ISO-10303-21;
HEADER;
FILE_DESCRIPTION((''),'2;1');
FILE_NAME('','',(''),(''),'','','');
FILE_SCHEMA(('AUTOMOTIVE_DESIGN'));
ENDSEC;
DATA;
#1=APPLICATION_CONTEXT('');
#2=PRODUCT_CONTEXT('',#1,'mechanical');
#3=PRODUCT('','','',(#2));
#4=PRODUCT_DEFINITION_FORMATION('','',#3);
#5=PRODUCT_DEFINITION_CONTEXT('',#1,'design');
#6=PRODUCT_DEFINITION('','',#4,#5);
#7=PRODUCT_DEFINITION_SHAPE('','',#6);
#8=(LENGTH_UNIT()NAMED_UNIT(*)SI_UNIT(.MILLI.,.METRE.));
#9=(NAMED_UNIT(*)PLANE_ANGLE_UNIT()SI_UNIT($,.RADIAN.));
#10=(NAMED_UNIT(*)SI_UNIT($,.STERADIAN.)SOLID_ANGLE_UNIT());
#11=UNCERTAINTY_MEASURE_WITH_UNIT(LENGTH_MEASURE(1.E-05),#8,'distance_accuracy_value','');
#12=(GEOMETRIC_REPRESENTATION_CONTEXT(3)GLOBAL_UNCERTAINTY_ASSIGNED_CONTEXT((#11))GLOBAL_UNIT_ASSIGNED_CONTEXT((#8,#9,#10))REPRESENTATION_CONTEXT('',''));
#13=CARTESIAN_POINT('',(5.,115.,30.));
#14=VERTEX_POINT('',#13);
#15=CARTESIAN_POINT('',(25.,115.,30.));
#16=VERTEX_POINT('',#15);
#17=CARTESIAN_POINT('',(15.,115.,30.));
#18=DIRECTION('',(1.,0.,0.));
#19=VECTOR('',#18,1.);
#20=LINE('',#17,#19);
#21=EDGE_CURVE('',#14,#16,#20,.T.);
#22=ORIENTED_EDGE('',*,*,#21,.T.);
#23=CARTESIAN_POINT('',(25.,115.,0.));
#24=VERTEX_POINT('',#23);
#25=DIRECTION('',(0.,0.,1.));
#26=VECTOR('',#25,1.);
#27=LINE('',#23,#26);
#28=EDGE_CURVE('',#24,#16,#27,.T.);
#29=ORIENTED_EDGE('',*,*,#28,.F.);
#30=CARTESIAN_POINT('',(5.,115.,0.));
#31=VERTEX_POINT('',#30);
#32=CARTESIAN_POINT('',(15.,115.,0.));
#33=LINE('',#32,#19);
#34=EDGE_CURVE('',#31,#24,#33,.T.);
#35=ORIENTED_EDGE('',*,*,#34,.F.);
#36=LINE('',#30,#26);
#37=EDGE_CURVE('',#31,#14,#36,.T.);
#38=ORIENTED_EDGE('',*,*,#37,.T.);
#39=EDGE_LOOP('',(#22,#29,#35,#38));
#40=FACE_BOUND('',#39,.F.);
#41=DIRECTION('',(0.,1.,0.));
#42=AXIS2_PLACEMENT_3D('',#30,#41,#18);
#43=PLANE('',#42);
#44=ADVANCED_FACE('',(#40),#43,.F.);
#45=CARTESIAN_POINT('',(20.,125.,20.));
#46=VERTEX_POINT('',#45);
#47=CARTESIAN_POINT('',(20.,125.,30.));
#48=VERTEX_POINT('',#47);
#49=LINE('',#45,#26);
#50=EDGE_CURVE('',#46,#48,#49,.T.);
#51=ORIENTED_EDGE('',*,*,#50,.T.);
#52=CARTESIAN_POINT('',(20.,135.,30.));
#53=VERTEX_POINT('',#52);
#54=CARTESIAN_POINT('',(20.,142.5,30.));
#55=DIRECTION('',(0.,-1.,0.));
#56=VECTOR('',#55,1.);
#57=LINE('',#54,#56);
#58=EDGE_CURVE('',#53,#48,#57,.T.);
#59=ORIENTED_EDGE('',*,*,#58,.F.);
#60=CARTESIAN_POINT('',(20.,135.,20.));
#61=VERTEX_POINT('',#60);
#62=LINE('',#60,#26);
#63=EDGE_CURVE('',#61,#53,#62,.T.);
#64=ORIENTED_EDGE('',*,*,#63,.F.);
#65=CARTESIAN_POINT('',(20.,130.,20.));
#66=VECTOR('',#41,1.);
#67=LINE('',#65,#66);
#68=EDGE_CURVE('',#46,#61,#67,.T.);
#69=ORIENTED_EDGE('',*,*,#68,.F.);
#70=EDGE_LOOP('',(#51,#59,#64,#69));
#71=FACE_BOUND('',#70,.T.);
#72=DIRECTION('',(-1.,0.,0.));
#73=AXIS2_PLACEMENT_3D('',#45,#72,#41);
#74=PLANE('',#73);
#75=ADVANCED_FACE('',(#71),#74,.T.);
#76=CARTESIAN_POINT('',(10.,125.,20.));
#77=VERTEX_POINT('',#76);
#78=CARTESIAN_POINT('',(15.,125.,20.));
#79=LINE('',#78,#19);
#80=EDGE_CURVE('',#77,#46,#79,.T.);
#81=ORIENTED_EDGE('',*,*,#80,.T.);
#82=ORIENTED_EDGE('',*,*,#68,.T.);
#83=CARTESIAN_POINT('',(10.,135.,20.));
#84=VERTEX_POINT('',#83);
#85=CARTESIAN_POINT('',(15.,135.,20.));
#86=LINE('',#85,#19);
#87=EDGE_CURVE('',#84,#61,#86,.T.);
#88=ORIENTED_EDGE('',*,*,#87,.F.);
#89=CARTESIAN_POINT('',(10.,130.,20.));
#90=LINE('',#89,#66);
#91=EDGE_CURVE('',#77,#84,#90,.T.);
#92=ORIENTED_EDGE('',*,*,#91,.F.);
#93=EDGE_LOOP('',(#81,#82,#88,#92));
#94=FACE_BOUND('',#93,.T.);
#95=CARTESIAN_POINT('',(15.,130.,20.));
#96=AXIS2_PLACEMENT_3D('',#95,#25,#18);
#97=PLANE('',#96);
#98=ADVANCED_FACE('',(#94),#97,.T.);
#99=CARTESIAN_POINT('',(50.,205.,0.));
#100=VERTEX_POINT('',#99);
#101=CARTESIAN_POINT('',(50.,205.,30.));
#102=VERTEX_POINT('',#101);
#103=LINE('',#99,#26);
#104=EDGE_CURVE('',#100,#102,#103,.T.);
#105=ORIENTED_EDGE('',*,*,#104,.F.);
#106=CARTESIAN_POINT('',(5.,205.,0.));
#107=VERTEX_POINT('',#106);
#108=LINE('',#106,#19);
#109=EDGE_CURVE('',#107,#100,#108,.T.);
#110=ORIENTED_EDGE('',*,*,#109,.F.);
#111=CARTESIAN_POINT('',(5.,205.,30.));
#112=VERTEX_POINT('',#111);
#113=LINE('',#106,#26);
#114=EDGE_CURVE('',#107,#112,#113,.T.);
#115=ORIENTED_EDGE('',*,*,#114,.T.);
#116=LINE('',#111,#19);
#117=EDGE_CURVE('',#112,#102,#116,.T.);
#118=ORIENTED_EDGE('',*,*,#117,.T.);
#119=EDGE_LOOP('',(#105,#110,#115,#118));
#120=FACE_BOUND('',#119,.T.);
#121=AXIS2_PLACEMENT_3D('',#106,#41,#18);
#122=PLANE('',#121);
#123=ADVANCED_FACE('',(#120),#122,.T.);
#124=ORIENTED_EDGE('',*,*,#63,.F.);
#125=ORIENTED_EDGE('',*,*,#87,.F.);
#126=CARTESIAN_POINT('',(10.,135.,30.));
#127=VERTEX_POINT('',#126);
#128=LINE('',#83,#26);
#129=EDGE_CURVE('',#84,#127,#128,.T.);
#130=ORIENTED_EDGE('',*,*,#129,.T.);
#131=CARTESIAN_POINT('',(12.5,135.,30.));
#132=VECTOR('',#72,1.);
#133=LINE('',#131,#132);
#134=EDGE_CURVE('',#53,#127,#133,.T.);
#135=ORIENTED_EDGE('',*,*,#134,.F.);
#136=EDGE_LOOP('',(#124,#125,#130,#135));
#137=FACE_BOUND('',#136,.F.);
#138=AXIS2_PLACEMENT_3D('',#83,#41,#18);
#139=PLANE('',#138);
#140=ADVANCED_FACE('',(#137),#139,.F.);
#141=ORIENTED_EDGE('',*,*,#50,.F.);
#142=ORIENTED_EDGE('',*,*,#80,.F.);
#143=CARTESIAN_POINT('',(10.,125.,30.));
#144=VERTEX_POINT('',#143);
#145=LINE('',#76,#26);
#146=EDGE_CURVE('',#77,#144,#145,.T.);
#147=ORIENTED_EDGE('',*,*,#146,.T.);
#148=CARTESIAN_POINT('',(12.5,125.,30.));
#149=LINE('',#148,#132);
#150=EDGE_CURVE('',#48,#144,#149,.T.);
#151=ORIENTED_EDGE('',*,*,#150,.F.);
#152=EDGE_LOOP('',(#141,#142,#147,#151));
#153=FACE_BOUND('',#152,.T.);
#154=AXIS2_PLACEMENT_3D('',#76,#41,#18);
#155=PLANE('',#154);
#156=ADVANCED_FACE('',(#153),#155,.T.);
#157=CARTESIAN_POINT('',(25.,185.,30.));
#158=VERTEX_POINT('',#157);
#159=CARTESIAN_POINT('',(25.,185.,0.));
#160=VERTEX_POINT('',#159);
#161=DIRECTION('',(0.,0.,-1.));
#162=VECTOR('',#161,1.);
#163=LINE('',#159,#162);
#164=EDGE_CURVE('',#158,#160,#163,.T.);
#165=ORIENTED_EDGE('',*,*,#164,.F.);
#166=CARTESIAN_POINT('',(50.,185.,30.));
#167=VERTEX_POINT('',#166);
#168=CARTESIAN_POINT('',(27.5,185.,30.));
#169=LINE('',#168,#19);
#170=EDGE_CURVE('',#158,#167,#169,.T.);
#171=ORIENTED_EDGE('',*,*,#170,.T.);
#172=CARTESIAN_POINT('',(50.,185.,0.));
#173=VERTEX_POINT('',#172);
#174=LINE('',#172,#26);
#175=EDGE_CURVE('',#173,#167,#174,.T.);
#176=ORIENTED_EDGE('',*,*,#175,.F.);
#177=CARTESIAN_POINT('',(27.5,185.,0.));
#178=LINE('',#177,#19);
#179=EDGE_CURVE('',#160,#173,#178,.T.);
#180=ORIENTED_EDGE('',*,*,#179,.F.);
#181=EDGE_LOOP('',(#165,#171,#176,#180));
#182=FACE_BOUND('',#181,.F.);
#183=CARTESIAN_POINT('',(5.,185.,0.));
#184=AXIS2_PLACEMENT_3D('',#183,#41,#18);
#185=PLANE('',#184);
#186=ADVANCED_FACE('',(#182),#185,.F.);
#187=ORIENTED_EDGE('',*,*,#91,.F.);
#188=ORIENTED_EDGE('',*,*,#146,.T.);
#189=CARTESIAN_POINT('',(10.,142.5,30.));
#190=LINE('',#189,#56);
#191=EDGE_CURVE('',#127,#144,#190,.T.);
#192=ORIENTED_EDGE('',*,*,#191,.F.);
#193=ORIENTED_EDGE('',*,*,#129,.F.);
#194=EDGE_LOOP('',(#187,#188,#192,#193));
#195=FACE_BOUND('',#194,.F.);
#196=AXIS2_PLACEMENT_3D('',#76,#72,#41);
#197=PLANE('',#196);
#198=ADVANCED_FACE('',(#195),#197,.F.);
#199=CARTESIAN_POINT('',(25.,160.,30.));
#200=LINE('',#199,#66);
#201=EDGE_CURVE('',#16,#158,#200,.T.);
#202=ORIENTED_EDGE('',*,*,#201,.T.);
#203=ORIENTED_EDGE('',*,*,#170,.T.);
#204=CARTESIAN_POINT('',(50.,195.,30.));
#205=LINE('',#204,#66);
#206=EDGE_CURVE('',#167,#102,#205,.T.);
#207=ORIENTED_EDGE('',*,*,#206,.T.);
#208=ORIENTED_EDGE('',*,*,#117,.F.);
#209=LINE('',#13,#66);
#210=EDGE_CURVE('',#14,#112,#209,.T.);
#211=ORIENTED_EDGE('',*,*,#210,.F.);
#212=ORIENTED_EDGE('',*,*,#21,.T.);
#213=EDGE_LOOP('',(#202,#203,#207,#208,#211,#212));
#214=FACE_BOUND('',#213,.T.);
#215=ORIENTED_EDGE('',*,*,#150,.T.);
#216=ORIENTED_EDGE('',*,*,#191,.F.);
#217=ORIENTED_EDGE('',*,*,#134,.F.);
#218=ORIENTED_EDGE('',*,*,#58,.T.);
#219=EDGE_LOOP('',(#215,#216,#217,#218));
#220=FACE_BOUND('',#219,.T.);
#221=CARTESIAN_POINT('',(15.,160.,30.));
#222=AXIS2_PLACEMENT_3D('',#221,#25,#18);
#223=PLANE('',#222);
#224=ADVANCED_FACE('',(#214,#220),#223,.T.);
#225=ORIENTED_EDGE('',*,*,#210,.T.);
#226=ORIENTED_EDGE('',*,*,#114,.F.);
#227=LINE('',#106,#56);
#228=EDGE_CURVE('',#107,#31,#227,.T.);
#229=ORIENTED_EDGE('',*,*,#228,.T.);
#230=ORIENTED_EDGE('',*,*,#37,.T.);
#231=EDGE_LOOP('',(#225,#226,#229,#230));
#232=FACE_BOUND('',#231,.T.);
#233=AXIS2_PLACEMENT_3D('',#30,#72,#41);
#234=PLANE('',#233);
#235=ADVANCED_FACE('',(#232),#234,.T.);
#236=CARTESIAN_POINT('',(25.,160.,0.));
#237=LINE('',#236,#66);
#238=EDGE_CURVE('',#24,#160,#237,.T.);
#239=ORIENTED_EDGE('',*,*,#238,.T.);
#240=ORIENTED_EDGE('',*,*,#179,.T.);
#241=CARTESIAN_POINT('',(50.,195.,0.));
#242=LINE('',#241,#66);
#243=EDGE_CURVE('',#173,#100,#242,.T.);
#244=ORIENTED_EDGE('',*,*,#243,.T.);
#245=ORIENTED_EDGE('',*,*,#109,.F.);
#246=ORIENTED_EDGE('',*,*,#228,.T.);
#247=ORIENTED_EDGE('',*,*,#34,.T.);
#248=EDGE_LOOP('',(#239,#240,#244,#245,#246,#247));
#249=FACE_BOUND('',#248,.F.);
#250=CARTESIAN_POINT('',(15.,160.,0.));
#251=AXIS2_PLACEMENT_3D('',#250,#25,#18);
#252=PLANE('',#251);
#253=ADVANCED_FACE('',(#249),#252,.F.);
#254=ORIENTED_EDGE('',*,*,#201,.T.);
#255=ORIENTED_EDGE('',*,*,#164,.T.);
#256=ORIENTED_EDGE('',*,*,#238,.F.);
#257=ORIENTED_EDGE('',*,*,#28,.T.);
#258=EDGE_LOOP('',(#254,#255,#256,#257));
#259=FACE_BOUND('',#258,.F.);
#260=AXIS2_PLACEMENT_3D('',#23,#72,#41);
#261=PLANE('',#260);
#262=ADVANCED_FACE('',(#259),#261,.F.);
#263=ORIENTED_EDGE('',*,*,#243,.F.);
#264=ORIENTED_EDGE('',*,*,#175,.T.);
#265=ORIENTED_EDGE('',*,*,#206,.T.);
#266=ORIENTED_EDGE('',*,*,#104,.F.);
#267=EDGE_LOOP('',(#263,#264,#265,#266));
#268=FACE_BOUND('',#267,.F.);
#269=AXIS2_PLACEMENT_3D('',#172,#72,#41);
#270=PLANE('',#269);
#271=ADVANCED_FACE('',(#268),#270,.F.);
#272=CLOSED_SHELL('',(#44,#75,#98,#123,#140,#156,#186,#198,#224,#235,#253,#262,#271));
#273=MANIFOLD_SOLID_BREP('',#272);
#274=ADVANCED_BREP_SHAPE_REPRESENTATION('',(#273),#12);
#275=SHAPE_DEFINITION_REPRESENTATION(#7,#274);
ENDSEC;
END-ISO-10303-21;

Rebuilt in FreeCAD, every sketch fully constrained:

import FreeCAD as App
import Part
import Sketcher


def add_polygon(sketch, points):
    """Adds a closed chain of lines whose ends are joined by coincident constraints."""
    first, n = sketch.GeometryCount, len(points)
    for a, b in zip(points, points[1:] + points[:1]):
        sketch.addGeometry(Part.LineSegment(App.Vector(*a, 0), App.Vector(*b, 0)), False)
    for i in range(n):
        sketch.addConstraint(Sketcher.Constraint("Coincident", first + i, 2, first + (i + 1) % n, 1))

doc = App.newDocument("Part")
body = doc.addObject("PartDesign::Body", "Body")

# Sketch on XY plane
sketch1 = body.newObject("Sketcher::SketchObject", "Sketch")
sketch1.AttachmentSupport = (doc.getObject("XY_Plane"), [""])
sketch1.MapMode = "FlatFace"
sketch1.AttachmentOffset = App.Placement(App.Vector(0, 0, 20), App.Rotation())
add_polygon(sketch1, [(10, 135), (10, 125), (20, 125), (20, 135)])  # lines 0-3
sketch1.addConstraint(Sketcher.Constraint("Vertical", 0))
sketch1.addConstraint(Sketcher.Constraint("Horizontal", 1))
sketch1.addConstraint(Sketcher.Constraint("Vertical", 2))
sketch1.addConstraint(Sketcher.Constraint("Horizontal", 3))
sketch1.addConstraint(Sketcher.Constraint("Equal", 3, 0))
sketch1.addConstraint(Sketcher.Constraint("DistanceX", 1, 1, 1, 2, 10.0))
sketch1.addConstraint(Sketcher.Constraint("DistanceX", -1, 1, 0, 2, 10.0))
sketch1.addConstraint(Sketcher.Constraint("DistanceY", -1, 1, 0, 2, 125.0))
pad1 = body.newObject("PartDesign::Pad", "Pad")
pad1.Profile = sketch1
pad1.Length = 12
body2 = doc.addObject("PartDesign::Body", "Body001")

# Sketch on XY plane
sketch2 = body2.newObject("Sketcher::SketchObject", "Sketch001")
sketch2.AttachmentSupport = (doc.getObject("XY_Plane001"), [""])
sketch2.MapMode = "FlatFace"
add_polygon(sketch2, [(5, 205), (5, 185), (50, 185), (50, 205)])  # lines 0-3
sketch2.addConstraint(Sketcher.Constraint("Vertical", 0))
sketch2.addConstraint(Sketcher.Constraint("Horizontal", 1))
sketch2.addConstraint(Sketcher.Constraint("Vertical", 2))
sketch2.addConstraint(Sketcher.Constraint("Horizontal", 3))
sketch2.addConstraint(Sketcher.Constraint("DistanceX", 1, 1, 1, 2, 45.0))
sketch2.addConstraint(Sketcher.Constraint("DistanceY", 0, 2, 0, 1, 20.0))
sketch2.addConstraint(Sketcher.Constraint("DistanceX", -1, 1, 0, 2, 5.0))
sketch2.addConstraint(Sketcher.Constraint("DistanceY", -1, 1, 0, 2, 185.0))
pad2 = body2.newObject("PartDesign::Pad", "Pad001")
pad2.Profile = sketch2
pad2.Length = 30
body3 = doc.addObject("PartDesign::Body", "Body002")

# Sketch on XY plane
sketch3 = body3.newObject("Sketcher::SketchObject", "Sketch002")
sketch3.AttachmentSupport = (doc.getObject("XY_Plane002"), [""])
sketch3.MapMode = "FlatFace"
add_polygon(sketch3, [(5, 205), (5, 115), (25, 115), (25, 205)])  # lines 0-3
sketch3.addConstraint(Sketcher.Constraint("Vertical", 0))
sketch3.addConstraint(Sketcher.Constraint("Horizontal", 1))
sketch3.addConstraint(Sketcher.Constraint("Vertical", 2))
sketch3.addConstraint(Sketcher.Constraint("Horizontal", 3))
sketch3.addConstraint(Sketcher.Constraint("DistanceX", 1, 1, 1, 2, 20.0))
sketch3.addConstraint(Sketcher.Constraint("DistanceY", 0, 2, 0, 1, 90.0))
sketch3.addConstraint(Sketcher.Constraint("DistanceX", -1, 1, 0, 2, 5.0))
sketch3.addConstraint(Sketcher.Constraint("DistanceY", -1, 1, 0, 2, 115.0))
pad3 = body3.newObject("PartDesign::Pad", "Pad002")
pad3.Profile = sketch3
pad3.Length = 30
doc.recompute()

boolean = body3.newObject("PartDesign::Boolean", "Boolean")
boolean.Type = "Fuse"
boolean.addObjects([body2])
doc.recompute()

boolean2 = body3.newObject("PartDesign::Boolean", "Boolean001")
boolean2.Type = "Cut"
boolean2.addObjects([body])

doc.recompute()
